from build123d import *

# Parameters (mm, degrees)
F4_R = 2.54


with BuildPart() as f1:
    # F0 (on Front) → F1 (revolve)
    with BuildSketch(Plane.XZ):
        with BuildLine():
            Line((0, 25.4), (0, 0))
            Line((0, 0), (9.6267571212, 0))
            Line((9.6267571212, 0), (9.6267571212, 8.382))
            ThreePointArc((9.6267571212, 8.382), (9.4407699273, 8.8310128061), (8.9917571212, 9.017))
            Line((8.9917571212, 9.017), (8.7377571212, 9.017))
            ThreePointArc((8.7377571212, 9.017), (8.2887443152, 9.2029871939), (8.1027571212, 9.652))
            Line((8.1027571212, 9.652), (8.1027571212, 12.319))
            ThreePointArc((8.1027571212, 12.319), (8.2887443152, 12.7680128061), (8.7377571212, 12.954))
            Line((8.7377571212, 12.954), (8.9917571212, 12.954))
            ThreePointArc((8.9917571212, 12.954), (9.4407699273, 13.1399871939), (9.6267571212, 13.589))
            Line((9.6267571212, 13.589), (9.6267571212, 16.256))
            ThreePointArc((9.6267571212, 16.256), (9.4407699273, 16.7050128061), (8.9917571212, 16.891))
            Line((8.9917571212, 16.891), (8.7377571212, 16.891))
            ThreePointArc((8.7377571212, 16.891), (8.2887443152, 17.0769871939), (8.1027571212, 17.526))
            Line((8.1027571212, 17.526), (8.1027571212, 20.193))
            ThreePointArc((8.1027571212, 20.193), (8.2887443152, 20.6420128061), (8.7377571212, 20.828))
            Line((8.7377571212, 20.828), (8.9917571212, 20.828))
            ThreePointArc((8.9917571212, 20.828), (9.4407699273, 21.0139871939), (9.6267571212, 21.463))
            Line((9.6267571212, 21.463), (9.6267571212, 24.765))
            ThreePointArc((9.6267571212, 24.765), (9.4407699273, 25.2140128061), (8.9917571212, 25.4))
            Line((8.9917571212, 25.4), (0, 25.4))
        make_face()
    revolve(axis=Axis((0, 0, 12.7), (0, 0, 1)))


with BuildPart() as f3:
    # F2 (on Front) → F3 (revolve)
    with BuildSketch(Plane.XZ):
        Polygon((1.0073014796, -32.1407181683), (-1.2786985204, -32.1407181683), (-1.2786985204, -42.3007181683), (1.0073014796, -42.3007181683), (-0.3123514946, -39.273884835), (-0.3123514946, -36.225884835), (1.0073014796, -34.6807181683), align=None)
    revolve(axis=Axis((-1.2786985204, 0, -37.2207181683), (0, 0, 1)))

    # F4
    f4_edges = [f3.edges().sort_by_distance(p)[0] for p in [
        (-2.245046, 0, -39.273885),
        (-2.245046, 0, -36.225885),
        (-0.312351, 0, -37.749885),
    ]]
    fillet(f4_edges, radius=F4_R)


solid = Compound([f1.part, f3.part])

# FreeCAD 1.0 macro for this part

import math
import FreeCAD as App
import Part
import Sketcher

V = App.Vector
Q = App.Units.Quantity


def edges_at(feature, points):
    """Names of the edges that pass closest to the given points."""
    edges = feature.Shape.Edges
    near = lambda p: min(range(len(edges)), key=lambda i: edges[i].distToShape(Part.Vertex(*p))[0])
    return sorted({f"Edge{near(p) + 1}" for p in points})


def add_polygon(sketch, points):
    """Adds a closed chain of lines whose ends are joined by coincident constraints."""
    first, n = sketch.GeometryCount, len(points)
    for a, b in zip(points, points[1:] + points[:1]):
        sketch.addGeometry(Part.LineSegment(App.Vector(*a, 0), App.Vector(*b, 0)), False)
    for i in range(n):
        sketch.addConstraint(Sketcher.Constraint("Coincident", first + i, 2, first + (i + 1) % n, 1))

doc = App.newDocument("Part")
body = doc.addObject("PartDesign::Body", "Body")

# Sketch on XZ plane
sketch1 = body.newObject("Sketcher::SketchObject", "Sketch")
sketch1.AttachmentSupport = (doc.getObject("XZ_Plane"), [""])
sketch1.MapMode = "FlatFace"
sketch1.addGeometry(Part.LineSegment(V(0, 25.4, 0), V(0, 0, 0)), False)
sketch1.addGeometry(Part.LineSegment(V(0, 0, 0), V(9.63, 0, 0)), False)
sketch1.addGeometry(Part.LineSegment(V(9.63, 0, 0), V(9.63, 8.38, 0)), False)
sketch1.addGeometry(Part.ArcOfCircle(Part.Circle(V(8.99, 8.38, 0), V(0, 0, 1), 0.64), math.radians(0), math.radians(90)), False)
sketch1.addGeometry(Part.LineSegment(V(8.99, 9.02, 0), V(8.74, 9.02, 0)), False)
sketch1.addGeometry(Part.ArcOfCircle(Part.Circle(V(8.74, 9.65, 0), V(0, 0, 1), 0.64), math.radians(180), math.radians(270)), False)
sketch1.addGeometry(Part.LineSegment(V(8.1, 9.65, 0), V(8.1, 12.32, 0)), False)
sketch1.addGeometry(Part.ArcOfCircle(Part.Circle(V(8.74, 12.32, 0), V(0, 0, 1), 0.64), math.radians(90), math.radians(180)), False)
sketch1.addGeometry(Part.LineSegment(V(8.74, 12.95, 0), V(8.99, 12.95, 0)), False)
sketch1.addGeometry(Part.ArcOfCircle(Part.Circle(V(8.99, 13.59, 0), V(0, 0, 1), 0.64), math.radians(-90), math.radians(0)), False)
sketch1.addGeometry(Part.LineSegment(V(9.63, 13.59, 0), V(9.63, 16.26, 0)), False)
sketch1.addGeometry(Part.ArcOfCircle(Part.Circle(V(8.99, 16.26, 0), V(0, 0, 1), 0.64), math.radians(0), math.radians(90)), False)
sketch1.addGeometry(Part.LineSegment(V(8.99, 16.89, 0), V(8.74, 16.89, 0)), False)
sketch1.addGeometry(Part.ArcOfCircle(Part.Circle(V(8.74, 17.53, 0), V(0, 0, 1), 0.64), math.radians(180), math.radians(270)), False)
sketch1.addGeometry(Part.LineSegment(V(8.1, 17.53, 0), V(8.1, 20.19, 0)), False)
sketch1.addGeometry(Part.ArcOfCircle(Part.Circle(V(8.74, 20.19, 0), V(0, 0, 1), 0.64), math.radians(90), math.radians(180)), False)
sketch1.addGeometry(Part.LineSegment(V(8.74, 20.83, 0), V(8.99, 20.83, 0)), False)
sketch1.addGeometry(Part.ArcOfCircle(Part.Circle(V(8.99, 21.46, 0), V(0, 0, 1), 0.64), math.radians(-90), math.radians(0)), False)
sketch1.addGeometry(Part.LineSegment(V(9.63, 21.46, 0), V(9.63, 24.77, 0)), False)
sketch1.addGeometry(Part.ArcOfCircle(Part.Circle(V(8.99, 24.77, 0), V(0, 0, 1), 0.64), math.radians(0), math.radians(90)), False)
sketch1.addGeometry(Part.LineSegment(V(8.99, 25.4, 0), V(0, 25.4, 0)), False)
sketch1.addConstraint(Sketcher.Constraint("Coincident", 0, 2, 1, 1))
sketch1.addConstraint(Sketcher.Constraint("Coincident", 1, 2, 2, 1))
sketch1.addConstraint(Sketcher.Constraint("Tangent", 2, 2, 3, 1))
sketch1.addConstraint(Sketcher.Constraint("Tangent", 3, 2, 4, 1))
sketch1.addConstraint(Sketcher.Constraint("Tangent", 4, 2, 5, 2))
sketch1.addConstraint(Sketcher.Constraint("Tangent", 5, 1, 6, 1))
sketch1.addConstraint(Sketcher.Constraint("Tangent", 6, 2, 7, 2))
sketch1.addConstraint(Sketcher.Constraint("Tangent", 7, 1, 8, 1))
sketch1.addConstraint(Sketcher.Constraint("Tangent", 8, 2, 9, 1))
sketch1.addConstraint(Sketcher.Constraint("Tangent", 9, 2, 10, 1))
sketch1.addConstraint(Sketcher.Constraint("Tangent", 10, 2, 11, 1))
sketch1.addConstraint(Sketcher.Constraint("Tangent", 11, 2, 12, 1))
sketch1.addConstraint(Sketcher.Constraint("Tangent", 12, 2, 13, 2))
sketch1.addConstraint(Sketcher.Constraint("Tangent", 13, 1, 14, 1))
sketch1.addConstraint(Sketcher.Constraint("Tangent", 14, 2, 15, 2))
sketch1.addConstraint(Sketcher.Constraint("Tangent", 15, 1, 16, 1))
sketch1.addConstraint(Sketcher.Constraint("Tangent", 16, 2, 17, 1))
sketch1.addConstraint(Sketcher.Constraint("Tangent", 17, 2, 18, 1))
sketch1.addConstraint(Sketcher.Constraint("Tangent", 18, 2, 19, 1))
sketch1.addConstraint(Sketcher.Constraint("Tangent", 19, 2, 20, 1))
sketch1.addConstraint(Sketcher.Constraint("Coincident", 20, 2, 0, 1))
sketch1.addConstraint(Sketcher.Constraint("Vertical", 0))
sketch1.addConstraint(Sketcher.Constraint("Horizontal", 1))
sketch1.addConstraint(Sketcher.Constraint("Vertical", 2))
sketch1.addConstraint(Sketcher.Constraint("Horizontal", 4))
sketch1.addConstraint(Sketcher.Constraint("Vertical", 6))
sketch1.addConstraint(Sketcher.Constraint("Horizontal", 8))
sketch1.addConstraint(Sketcher.Constraint("Vertical", 10))
sketch1.addConstraint(Sketcher.Constraint("Horizontal", 12))
sketch1.addConstraint(Sketcher.Constraint("Vertical", 14))
sketch1.addConstraint(Sketcher.Constraint("Horizontal", 16))
sketch1.addConstraint(Sketcher.Constraint("Vertical", 18))
sketch1.addConstraint(Sketcher.Constraint("Horizontal", 20))
sketch1.addConstraint(Sketcher.Constraint("Coincident", 0, 2, -1, 1))
sketch1.addConstraint(Sketcher.Constraint("Equal", 3, 5))
sketch1.addConstraint(Sketcher.Constraint("Equal", 5, 7))
sketch1.addConstraint(Sketcher.Constraint("Equal", 7, 9))
sketch1.addConstraint(Sketcher.Constraint("Equal", 9, 11))
sketch1.addConstraint(Sketcher.Constraint("Equal", 11, 13))
sketch1.addConstraint(Sketcher.Constraint("Equal", 13, 15))
sketch1.addConstraint(Sketcher.Constraint("Equal", 15, 17))
sketch1.addConstraint(Sketcher.Constraint("Equal", 17, 19))
sketch1.addConstraint(Sketcher.Constraint("Vertical", 3, 3, 9, 3))
sketch1.addConstraint(Sketcher.Constraint("Vertical", 7, 3, 13, 3))
sketch1.addConstraint(Sketcher.Constraint("Vertical", 11, 3, 17, 3))
sketch1.addConstraint(Sketcher.Constraint("Equal", 6, 10))
sketch1.addConstraint(Sketcher.Constraint("Equal", 10, 14))
sketch1.addConstraint(Sketcher.Constraint("DistanceY", 0, 2, 0, 1, Q("1 in")))
sketch1.addConstraint(Sketcher.Constraint("Radius", 3, Q("0.025 in")))
sketch1.addConstraint(Sketcher.Constraint("DistanceX", 4, 2, 4, 1, Q("0.01 in")))
sketch1.addConstraint(Sketcher.Constraint("DistanceY", 2, 1, 2, 2, Q("0.33 in")))
sketch1.addConstraint(Sketcher.Constraint("DistanceY", 18, 1, 18, 2, Q("0.13 in")))
sketch1.addConstraint(Sketcher.Constraint("DistanceX", 1, 1, 1, 2, Q("9.626757 mm")))
revolution = body.newObject("PartDesign::Revolution", "Revolution")
revolution.Profile = sketch1
revolution.ReferenceAxis = (sketch1, ["V_Axis"])
revolution.Angle = 360
body2 = doc.addObject("PartDesign::Body", "Body001")

# Sketch on XZ plane
sketch2 = body2.newObject("Sketcher::SketchObject", "Sketch001")
sketch2.AttachmentSupport = (doc.getObject("XZ_Plane001"), [""])
sketch2.MapMode = "FlatFace"
add_polygon(sketch2, [(1, -32.1), (-1.3, -32.1), (-1.3, -42.3), (1, -42.3), (-0.3, -39.3), (-0.3, -36.2), (1, -34.7)])  # lines 0-6
sketch2.addGeometry(Part.LineSegment(V(-1.3, -42.3, 0), V(-1.3, -32.1, 0)), True)  # axis
sketch2.addConstraint(Sketcher.Constraint("Horizontal", 0))
sketch2.addConstraint(Sketcher.Constraint("Vertical", 1))
sketch2.addConstraint(Sketcher.Constraint("Horizontal", 2))
sketch2.addConstraint(Sketcher.Constraint("Vertical", 4))
sketch2.addConstraint(Sketcher.Constraint("Vertical", 6))
sketch2.addConstraint(Sketcher.Constraint("Vertical", 7))
sketch2.addConstraint(Sketcher.Constraint("Coincident", 7, 1, 1, 2))
sketch2.addConstraint(Sketcher.Constraint("Horizontal", 6, 2, 7, 2))
sketch2.addConstraint(Sketcher.Constraint("Vertical", 2, 2, 5, 2))
sketch2.addConstraint(Sketcher.Constraint("DistanceY", 1, 2, 1, 1, Q("0.4 in")))
sketch2.addConstraint(Sketcher.Constraint("DistanceY", 6, 1, 6, 2, Q("0.1 in")))
sketch2.addConstraint(Sketcher.Constraint("DistanceX", 0, 2, 0, 1, Q("0.09 in")))
sketch2.addConstraint(Sketcher.Constraint("DistanceY", 4, 1, 4, 2, Q("0.12 in")))
sketch2.addConstraint(Sketcher.Constraint("Distance", 3, Q("0.13 in")))
sketch2.addConstraint(Sketcher.Constraint("Distance", 5, Q("0.08 in")))
sketch2.addConstraint(Sketcher.Constraint("DistanceX", 0, 2, -1, 1, Q("1.278699 mm")))
sketch2.addConstraint(Sketcher.Constraint("DistanceY", 0, 2, -1, 1, Q("32.140718 mm")))
revolution2 = body2.newObject("PartDesign::Revolution", "Revolution001")
revolution2.Profile = sketch2
revolution2.ReferenceAxis = (sketch2, ["Axis0"])
revolution2.Angle = 360
doc.recompute()

fillet = body2.newObject("PartDesign::Fillet", "Fillet")
fillet.Base = (revolution2, edges_at(revolution2, [(-2.245, 0, -39.274), (-2.245, 0, -36.226), (-0.312, 0, -37.75)]))
fillet.Radius = Q("0.1 in")

doc.recompute()
